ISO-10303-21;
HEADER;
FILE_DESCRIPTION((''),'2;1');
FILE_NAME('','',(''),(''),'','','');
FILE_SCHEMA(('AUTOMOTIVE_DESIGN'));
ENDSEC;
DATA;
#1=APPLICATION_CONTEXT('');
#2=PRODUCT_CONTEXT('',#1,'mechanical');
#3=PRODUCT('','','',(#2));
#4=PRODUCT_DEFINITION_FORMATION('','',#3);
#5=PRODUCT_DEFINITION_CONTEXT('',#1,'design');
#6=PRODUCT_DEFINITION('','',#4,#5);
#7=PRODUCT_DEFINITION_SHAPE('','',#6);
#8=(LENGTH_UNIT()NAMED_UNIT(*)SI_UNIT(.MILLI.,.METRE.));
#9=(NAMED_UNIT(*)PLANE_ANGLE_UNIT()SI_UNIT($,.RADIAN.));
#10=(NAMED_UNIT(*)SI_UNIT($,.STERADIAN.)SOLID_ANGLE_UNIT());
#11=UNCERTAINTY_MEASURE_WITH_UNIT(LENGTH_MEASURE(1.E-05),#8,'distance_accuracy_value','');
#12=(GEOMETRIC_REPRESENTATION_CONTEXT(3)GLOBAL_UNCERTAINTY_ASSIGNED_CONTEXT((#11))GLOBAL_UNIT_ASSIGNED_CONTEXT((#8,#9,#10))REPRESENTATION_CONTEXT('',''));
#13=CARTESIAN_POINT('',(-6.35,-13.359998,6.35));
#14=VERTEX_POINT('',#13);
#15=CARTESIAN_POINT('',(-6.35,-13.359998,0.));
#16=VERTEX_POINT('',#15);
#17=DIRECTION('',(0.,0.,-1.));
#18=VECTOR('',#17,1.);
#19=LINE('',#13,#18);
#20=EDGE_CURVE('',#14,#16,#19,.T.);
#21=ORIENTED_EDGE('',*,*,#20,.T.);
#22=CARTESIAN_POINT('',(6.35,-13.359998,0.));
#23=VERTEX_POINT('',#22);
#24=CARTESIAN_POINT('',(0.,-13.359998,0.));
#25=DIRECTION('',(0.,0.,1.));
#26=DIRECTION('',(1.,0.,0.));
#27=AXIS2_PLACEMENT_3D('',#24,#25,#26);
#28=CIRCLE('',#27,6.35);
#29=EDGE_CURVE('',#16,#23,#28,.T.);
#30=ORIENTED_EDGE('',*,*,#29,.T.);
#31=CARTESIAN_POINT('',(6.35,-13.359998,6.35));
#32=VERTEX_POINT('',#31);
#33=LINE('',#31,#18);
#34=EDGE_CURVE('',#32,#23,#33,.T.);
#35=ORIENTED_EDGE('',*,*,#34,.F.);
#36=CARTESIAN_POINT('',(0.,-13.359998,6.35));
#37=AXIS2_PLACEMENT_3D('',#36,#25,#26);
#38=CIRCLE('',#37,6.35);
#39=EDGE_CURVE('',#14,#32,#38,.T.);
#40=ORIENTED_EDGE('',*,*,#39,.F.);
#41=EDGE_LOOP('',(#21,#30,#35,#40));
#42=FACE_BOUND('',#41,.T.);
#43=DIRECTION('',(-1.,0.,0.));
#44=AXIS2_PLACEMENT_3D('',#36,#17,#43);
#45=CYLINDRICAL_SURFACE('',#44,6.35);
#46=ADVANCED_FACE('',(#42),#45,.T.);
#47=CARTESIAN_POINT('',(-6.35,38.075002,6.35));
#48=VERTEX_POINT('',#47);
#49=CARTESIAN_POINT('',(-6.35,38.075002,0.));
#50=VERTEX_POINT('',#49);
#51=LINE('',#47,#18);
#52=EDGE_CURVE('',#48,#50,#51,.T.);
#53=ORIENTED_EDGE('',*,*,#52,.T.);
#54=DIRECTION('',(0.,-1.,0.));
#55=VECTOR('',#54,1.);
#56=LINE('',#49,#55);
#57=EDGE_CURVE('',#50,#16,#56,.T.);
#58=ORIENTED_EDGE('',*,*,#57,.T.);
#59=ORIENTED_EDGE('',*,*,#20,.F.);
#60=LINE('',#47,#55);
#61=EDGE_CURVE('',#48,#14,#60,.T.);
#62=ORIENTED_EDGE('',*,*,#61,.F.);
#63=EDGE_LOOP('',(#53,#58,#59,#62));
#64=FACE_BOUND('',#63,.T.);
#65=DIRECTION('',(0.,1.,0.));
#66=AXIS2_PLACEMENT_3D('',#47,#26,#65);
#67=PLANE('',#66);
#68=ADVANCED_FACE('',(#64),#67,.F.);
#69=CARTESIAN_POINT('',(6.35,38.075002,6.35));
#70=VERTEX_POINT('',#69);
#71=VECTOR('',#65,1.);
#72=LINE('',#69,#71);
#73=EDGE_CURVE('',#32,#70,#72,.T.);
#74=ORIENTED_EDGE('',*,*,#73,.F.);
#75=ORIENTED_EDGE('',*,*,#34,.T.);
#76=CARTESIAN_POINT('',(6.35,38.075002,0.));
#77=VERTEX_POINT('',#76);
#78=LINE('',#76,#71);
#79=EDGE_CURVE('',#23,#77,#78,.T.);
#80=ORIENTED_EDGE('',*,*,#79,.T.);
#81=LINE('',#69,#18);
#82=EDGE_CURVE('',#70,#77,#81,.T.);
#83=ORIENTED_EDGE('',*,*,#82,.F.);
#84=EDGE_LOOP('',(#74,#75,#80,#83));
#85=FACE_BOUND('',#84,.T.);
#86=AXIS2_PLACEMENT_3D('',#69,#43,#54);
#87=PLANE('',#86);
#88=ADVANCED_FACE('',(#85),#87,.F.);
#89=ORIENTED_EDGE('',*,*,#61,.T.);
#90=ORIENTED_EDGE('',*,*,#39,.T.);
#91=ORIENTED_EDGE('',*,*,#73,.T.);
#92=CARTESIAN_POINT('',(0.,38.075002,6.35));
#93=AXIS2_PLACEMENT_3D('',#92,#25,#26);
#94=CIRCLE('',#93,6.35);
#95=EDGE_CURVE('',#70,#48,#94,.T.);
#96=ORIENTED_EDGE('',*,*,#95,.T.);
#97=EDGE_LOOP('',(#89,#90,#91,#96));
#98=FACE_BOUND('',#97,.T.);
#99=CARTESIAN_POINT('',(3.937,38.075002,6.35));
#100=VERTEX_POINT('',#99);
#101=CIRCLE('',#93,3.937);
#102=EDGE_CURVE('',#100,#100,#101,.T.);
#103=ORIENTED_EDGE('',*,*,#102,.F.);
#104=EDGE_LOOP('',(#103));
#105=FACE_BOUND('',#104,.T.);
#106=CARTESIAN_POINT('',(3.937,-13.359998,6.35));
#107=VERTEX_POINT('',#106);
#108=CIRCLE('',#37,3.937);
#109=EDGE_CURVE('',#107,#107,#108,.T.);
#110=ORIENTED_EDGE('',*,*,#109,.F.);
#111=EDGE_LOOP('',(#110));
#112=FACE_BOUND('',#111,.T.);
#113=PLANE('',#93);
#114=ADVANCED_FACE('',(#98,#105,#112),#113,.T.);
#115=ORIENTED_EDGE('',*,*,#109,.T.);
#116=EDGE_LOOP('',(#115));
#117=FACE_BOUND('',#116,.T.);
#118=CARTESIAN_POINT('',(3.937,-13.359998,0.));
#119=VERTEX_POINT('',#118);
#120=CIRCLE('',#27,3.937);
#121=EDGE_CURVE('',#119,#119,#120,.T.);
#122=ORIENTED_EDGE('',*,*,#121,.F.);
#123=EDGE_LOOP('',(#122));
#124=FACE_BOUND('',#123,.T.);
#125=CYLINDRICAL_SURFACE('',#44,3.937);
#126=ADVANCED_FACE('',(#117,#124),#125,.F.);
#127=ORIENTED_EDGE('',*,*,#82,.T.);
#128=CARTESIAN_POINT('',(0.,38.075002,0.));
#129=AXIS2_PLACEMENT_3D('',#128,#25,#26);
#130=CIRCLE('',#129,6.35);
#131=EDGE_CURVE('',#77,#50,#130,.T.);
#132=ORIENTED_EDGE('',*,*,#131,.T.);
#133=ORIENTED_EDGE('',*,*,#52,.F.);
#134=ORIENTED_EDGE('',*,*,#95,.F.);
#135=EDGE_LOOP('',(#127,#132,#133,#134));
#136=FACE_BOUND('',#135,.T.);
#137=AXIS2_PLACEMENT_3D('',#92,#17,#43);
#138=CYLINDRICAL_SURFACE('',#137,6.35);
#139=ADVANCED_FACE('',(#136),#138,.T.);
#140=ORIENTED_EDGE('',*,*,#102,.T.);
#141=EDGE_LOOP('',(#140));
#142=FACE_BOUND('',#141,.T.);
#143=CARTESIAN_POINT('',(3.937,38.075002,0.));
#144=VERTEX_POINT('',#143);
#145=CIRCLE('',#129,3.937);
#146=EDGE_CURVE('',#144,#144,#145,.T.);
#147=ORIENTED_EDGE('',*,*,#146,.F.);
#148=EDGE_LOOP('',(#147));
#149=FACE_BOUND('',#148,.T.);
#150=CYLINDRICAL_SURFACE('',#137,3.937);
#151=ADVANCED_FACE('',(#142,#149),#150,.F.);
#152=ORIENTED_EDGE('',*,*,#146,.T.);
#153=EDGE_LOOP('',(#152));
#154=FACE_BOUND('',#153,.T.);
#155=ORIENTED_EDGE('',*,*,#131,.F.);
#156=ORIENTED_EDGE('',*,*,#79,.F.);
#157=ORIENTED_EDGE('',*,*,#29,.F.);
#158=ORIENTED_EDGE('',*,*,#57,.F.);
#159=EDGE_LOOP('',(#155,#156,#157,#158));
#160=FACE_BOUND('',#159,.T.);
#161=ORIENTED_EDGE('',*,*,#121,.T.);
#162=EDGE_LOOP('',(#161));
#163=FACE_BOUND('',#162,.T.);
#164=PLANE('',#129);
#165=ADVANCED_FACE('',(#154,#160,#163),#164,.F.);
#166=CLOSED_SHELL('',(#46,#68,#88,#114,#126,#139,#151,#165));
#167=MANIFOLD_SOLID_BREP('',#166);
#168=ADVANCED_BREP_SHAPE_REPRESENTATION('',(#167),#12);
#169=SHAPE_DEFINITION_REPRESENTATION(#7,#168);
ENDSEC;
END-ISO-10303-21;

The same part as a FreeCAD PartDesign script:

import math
import FreeCAD as App
import Part
import Sketcher
Q = App.Units.Quantity

doc = App.newDocument("Part")
body = doc.addObject("PartDesign::Body", "Body")

# Sketch on XY plane
sketch1 = body.newObject("Sketcher::SketchObject", "Sketch")
sketch1.AttachmentSupport = (doc.getObject("XY_Plane"), [""])
sketch1.MapMode = "FlatFace"
sketch1.addGeometry([
    Part.LineSegment(App.Vector(6.35, -13.359998, 0), App.Vector(6.35, 38.075002, 0)),  # 0
    Part.ArcOfCircle(Part.Circle(App.Vector(0, 38.075002, 0), App.Vector(0, 0, 1), 6.35), math.radians(0), math.radians(180)),  # 1
    Part.LineSegment(App.Vector(-6.35, 38.075002, 0), App.Vector(-6.35, -13.359998, 0)),  # 2
    Part.ArcOfCircle(Part.Circle(App.Vector(0, -13.359998, 0), App.Vector(0, 0, 1), 6.35), math.radians(180), math.radians(360)),  # 3
    Part.Circle(App.Vector(0, -13.359998, 0), App.Vector(0, 0, 1), 3.937),  # 4
    Part.Circle(App.Vector(0, 38.075002, 0), App.Vector(0, 0, 1), 3.937),  # 5
], False)
sketch1.addConstraint([
    Sketcher.Constraint("Tangent", 0, 2, 1, 1),
    Sketcher.Constraint("Tangent", 1, 2, 2, 1),
    Sketcher.Constraint("Tangent", 2, 2, 3, 1),
    Sketcher.Constraint("Tangent", 3, 2, 0, 1),
    Sketcher.Constraint("Vertical", 0),
    Sketcher.Constraint("Vertical", 2),
    Sketcher.Constraint("Coincident", 4, 3, 3, 3),
    Sketcher.Constraint("Coincident", 5, 3, 1, 3),
    Sketcher.Constraint("Equal", 4, 5),
    Sketcher.Constraint("PointOnObject", 1, 3, -2),
    Sketcher.Constraint("Diameter", 4, Q("0.31 in")),
    Sketcher.Constraint("Radius", 1, Q("0.25 in")),
    Sketcher.Constraint("DistanceY", 0, 1, 0, 2, Q("2.025 in")),
    Sketcher.Constraint("DistanceY", -1, 1, 1, 3, 38.075002),
])
pad1 = body.newObject("PartDesign::Pad", "Pad")
pad1.Profile = sketch1
pad1.Length = Q("0.25 in")

doc.recompute()
